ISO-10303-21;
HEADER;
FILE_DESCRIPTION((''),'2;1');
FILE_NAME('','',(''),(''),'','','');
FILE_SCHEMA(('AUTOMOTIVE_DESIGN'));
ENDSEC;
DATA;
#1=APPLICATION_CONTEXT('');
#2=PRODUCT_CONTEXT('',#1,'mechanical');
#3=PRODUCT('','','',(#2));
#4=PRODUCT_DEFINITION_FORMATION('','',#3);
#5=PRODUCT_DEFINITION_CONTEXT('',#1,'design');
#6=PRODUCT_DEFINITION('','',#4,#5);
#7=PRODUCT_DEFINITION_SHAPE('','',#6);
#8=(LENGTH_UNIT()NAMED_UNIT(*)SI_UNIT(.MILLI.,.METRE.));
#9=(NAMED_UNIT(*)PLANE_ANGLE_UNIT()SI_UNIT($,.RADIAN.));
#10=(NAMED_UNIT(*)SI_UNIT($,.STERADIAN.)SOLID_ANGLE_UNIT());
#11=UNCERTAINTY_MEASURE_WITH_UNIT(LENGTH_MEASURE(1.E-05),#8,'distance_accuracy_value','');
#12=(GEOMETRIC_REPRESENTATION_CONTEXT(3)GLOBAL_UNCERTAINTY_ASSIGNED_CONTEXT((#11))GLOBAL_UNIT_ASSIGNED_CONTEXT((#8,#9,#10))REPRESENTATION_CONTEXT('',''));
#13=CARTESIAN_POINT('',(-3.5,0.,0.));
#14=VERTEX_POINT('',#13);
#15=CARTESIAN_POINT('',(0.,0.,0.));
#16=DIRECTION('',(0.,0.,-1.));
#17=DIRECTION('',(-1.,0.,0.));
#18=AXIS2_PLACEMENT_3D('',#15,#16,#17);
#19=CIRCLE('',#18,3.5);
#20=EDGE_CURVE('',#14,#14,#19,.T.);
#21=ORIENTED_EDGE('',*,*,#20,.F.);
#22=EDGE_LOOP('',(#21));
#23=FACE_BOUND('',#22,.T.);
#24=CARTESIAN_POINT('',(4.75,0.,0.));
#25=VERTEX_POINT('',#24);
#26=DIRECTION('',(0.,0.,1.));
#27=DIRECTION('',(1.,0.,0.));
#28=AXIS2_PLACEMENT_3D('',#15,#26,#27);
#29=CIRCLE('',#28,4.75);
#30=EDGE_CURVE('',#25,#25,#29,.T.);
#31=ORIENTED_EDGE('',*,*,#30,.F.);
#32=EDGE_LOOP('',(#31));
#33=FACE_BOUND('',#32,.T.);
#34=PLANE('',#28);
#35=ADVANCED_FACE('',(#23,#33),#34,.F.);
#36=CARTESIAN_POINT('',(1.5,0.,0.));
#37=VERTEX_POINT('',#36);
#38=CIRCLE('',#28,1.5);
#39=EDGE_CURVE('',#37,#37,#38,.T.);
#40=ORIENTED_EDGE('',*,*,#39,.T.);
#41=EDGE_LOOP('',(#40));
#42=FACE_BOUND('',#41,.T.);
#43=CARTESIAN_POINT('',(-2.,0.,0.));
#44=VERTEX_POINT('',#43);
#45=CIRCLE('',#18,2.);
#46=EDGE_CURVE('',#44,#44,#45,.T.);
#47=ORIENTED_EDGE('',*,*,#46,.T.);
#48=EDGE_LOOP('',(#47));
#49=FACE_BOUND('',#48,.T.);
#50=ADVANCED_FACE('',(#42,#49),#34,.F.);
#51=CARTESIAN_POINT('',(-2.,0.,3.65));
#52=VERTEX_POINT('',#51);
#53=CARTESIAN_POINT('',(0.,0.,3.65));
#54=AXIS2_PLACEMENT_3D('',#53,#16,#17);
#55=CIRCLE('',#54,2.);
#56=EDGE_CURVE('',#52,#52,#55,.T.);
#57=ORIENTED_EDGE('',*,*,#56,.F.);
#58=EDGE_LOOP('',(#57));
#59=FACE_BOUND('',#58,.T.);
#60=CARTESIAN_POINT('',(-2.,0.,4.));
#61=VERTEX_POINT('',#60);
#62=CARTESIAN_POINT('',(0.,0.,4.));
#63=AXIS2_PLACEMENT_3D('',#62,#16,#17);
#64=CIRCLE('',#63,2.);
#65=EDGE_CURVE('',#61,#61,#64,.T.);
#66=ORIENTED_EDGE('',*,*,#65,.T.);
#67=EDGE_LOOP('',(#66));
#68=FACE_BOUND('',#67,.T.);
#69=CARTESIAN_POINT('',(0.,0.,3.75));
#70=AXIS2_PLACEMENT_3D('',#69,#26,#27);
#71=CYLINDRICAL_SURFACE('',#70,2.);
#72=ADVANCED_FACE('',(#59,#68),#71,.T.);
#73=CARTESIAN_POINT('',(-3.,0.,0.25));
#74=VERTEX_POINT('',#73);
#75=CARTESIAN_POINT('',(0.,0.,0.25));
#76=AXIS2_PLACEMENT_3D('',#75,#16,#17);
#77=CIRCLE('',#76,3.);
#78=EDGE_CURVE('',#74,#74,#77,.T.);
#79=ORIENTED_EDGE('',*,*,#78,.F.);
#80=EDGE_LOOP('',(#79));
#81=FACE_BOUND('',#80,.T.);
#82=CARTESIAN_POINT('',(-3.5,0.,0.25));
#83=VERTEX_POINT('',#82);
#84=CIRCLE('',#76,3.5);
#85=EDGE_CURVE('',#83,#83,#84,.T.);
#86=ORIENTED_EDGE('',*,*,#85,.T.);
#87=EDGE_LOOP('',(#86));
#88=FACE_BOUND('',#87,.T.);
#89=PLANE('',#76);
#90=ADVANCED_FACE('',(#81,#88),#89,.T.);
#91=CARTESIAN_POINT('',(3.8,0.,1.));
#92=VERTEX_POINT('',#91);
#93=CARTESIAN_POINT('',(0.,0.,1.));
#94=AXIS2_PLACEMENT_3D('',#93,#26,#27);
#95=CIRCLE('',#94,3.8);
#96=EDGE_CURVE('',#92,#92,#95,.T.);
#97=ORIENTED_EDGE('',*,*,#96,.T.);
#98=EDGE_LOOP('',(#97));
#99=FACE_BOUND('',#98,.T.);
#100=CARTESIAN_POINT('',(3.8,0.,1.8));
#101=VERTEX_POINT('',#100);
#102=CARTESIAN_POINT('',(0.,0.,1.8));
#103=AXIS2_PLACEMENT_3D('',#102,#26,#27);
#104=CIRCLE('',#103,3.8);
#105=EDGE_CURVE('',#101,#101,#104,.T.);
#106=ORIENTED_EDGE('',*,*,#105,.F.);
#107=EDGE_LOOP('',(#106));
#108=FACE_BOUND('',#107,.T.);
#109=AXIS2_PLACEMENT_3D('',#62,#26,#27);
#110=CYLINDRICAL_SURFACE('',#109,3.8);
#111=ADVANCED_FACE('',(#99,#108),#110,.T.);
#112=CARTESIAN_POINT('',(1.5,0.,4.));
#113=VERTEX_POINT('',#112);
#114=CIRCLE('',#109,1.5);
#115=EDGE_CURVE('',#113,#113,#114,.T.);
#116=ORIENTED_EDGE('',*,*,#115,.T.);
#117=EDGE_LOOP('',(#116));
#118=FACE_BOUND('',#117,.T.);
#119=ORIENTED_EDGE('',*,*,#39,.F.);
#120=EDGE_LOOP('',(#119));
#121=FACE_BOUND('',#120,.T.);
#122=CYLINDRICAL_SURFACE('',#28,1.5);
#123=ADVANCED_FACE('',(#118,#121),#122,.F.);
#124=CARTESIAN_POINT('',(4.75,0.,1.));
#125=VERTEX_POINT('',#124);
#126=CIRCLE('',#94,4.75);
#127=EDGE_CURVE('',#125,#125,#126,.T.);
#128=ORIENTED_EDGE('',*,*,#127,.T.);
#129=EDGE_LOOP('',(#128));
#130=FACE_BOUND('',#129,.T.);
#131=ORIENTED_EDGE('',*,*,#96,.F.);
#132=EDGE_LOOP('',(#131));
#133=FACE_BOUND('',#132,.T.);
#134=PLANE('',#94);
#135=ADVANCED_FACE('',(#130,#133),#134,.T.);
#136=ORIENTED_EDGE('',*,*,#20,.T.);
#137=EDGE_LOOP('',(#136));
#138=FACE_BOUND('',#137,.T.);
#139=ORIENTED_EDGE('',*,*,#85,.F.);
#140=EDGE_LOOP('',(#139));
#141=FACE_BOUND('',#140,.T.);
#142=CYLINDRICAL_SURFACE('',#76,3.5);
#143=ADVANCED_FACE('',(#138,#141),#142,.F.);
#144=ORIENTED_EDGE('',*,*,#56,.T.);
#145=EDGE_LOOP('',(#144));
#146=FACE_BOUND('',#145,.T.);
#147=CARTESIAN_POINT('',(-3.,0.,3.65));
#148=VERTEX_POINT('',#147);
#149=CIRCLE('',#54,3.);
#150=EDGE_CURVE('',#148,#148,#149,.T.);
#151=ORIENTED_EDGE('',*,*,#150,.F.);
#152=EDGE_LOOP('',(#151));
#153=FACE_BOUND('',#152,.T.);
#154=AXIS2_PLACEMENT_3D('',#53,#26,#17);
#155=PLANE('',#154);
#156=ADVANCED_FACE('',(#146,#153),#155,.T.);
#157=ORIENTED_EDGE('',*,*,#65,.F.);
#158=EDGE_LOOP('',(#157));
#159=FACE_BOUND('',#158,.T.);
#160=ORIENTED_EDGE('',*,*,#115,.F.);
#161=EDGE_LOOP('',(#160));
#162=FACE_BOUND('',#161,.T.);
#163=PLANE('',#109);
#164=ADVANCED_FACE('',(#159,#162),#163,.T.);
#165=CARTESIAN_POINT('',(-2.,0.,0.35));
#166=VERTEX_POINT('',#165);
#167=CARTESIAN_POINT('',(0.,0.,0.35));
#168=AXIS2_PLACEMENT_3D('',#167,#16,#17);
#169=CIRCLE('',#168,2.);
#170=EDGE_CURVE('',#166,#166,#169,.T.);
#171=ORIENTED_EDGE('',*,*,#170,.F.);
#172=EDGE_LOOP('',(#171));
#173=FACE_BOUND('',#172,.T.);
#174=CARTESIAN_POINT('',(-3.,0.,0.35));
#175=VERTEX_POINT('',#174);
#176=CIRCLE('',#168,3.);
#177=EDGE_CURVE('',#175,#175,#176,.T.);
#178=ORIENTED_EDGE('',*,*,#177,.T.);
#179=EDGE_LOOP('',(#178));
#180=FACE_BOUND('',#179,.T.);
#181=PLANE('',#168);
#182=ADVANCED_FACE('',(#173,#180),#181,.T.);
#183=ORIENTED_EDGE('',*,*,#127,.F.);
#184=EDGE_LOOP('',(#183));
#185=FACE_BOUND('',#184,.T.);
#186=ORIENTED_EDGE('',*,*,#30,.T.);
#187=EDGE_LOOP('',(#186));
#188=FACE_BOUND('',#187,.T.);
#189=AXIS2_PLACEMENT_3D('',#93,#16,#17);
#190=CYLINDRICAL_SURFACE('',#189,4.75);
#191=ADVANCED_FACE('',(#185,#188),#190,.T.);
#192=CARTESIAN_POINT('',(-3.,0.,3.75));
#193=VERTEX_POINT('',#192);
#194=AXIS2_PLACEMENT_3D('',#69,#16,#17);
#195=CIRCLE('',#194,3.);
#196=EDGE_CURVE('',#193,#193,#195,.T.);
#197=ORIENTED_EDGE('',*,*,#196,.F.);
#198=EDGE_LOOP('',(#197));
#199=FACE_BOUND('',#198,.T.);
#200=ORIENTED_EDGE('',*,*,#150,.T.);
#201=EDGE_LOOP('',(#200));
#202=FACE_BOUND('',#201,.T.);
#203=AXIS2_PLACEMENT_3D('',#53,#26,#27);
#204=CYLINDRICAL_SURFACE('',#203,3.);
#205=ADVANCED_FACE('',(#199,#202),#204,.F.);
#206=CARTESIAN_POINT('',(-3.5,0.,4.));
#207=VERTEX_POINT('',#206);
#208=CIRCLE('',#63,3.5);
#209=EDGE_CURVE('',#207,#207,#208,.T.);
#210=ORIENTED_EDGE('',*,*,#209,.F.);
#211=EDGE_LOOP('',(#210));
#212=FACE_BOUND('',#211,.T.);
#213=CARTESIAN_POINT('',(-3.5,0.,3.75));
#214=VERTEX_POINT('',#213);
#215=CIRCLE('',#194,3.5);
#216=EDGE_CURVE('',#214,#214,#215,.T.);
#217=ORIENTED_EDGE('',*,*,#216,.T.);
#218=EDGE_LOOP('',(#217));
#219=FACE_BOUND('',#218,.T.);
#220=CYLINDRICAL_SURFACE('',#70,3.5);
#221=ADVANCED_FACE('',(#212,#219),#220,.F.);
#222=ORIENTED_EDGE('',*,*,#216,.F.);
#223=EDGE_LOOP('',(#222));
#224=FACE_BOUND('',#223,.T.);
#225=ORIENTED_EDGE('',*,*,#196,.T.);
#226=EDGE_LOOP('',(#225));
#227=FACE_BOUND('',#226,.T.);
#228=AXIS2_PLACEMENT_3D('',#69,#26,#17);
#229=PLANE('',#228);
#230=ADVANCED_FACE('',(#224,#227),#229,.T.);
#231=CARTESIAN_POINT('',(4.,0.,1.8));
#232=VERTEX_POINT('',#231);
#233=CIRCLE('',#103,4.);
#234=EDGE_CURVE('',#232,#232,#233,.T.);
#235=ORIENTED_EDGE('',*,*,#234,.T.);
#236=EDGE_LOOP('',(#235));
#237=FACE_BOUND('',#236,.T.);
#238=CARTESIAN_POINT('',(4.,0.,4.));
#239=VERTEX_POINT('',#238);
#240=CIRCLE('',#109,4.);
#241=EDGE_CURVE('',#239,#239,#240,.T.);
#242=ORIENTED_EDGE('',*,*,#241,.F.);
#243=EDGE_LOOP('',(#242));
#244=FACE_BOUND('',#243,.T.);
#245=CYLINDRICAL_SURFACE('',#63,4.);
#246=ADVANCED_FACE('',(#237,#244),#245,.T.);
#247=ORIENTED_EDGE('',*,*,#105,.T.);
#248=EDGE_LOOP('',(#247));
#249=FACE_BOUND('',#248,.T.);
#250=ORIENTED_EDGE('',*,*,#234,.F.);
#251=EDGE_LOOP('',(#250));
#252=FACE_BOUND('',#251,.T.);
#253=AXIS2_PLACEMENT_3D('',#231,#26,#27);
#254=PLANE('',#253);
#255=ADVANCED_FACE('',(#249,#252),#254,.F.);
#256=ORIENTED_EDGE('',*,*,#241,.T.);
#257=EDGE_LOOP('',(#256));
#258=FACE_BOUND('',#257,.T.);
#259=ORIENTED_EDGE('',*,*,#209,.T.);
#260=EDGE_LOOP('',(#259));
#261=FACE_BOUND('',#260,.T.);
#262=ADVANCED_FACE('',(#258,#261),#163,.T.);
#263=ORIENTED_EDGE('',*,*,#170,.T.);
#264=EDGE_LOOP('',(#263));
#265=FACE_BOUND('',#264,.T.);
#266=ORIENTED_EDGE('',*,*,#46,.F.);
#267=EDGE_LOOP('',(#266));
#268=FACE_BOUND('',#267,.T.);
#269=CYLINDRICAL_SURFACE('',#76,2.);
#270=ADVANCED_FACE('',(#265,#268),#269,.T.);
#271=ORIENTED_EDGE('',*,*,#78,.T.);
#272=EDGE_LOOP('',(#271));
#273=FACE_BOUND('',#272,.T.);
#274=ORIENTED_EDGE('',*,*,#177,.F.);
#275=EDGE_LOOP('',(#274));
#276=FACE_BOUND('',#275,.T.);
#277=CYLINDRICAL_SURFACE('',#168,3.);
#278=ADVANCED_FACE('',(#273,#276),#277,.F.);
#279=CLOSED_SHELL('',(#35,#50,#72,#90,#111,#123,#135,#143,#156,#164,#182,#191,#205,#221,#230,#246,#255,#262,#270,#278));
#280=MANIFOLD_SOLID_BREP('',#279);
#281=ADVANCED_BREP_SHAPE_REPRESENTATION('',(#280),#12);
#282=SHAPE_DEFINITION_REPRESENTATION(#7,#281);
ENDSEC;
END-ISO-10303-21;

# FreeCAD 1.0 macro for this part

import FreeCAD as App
import Part
import Sketcher

V = App.Vector
Q = App.Units.Quantity

doc = App.newDocument("Part")
body = doc.addObject("PartDesign::Body", "Body")

# Sketch on XY plane
sketch1 = body.newObject("Sketcher::SketchObject", "Sketch")
sketch1.AttachmentSupport = (doc.getObject("XY_Plane"), [""])
sketch1.MapMode = "FlatFace"
sketch1.addGeometry(Part.Circle(V(0, 0, 0), V(0, 0, 1), 4), False)
sketch1.addConstraint([
    Sketcher.Constraint("Coincident", 0, 3, -1, 1),
    Sketcher.Constraint("Diameter", 0, Q("8 mm")),
])
pad1 = body.newObject("PartDesign::Pad", "Pad")
pad1.Profile = sketch1
pad1.Length = 4

# Sketch on XY plane
sketch2 = body.newObject("Sketcher::SketchObject", "Sketch001")
sketch2.AttachmentSupport = (doc.getObject("XY_Plane"), [""])
sketch2.MapMode = "FlatFace"
sketch2.AttachmentOffset = App.Placement(V(0, 0, 4), App.Rotation())
sketch2.addGeometry(Part.Circle(V(0, 0, 0), V(0, 0, 1), 1.5), False)
sketch2.addConstraint([
    Sketcher.Constraint("Coincident", 0, 3, -1, 1),
    Sketcher.Constraint("Diameter", 0, Q("3 mm")),
])
pocket1 = body.newObject("PartDesign::Pocket", "Pocket")
pocket1.Profile = sketch2
pocket1.Type = "ThroughAll"

# Sketch on XY plane
sketch3 = body.newObject("Sketcher::SketchObject", "Sketch002")
sketch3.AttachmentSupport = (doc.getObject("XY_Plane"), [""])
sketch3.MapMode = "FlatFace"
sketch3.addGeometry([
    Part.Circle(V(0, 0, 0), V(0, 0, 1), 3.5),
    Part.Circle(V(0, 0, 0), V(0, 0, 1), 2),
], False)
sketch3.addConstraint([
    Sketcher.Constraint("Coincident", 0, 3, -1, 1),
    Sketcher.Constraint("Coincident", 1, 3, -1, 1),
    Sketcher.Constraint("Diameter", 0, Q("7 mm")),
    Sketcher.Constraint("Diameter", 1, Q("4 mm")),
])
pocket2 = body.newObject("PartDesign::Pocket", "Pocket001")
pocket2.Profile = sketch3
pocket2.Length = 0.25
pocket2.Reversed = True

# Sketch on XY plane
sketch4 = body.newObject("Sketcher::SketchObject", "Sketch003")
sketch4.AttachmentSupport = (doc.getObject("XY_Plane"), [""])
sketch4.MapMode = "FlatFace"
sketch4.AttachmentOffset = App.Placement(V(0, 0, 0.25), App.Rotation())
sketch4.addGeometry([
    Part.Circle(V(0, 0, 0), V(0, 0, 1), 3),
    Part.Circle(V(0, 0, 0), V(0, 0, 1), 2),
], False)
sketch4.addConstraint([
    Sketcher.Constraint("Coincident", 0, 3, -1, 1),
    Sketcher.Constraint("Coincident", 1, 3, -1, 1),
    Sketcher.Constraint("Diameter", 0, Q("6 mm")),
    Sketcher.Constraint("Diameter", 1, Q("4 mm")),
])
pocket3 = body.newObject("PartDesign::Pocket", "Pocket002")
pocket3.Profile = sketch4
pocket3.Length = 0.1
pocket3.Reversed = True
doc.recompute()

datumplane = body.newObject("PartDesign::Plane", "DatumPlane")
datumplane.AttachmentSupport = (doc.getObject("XY_Plane"), [""])
datumplane.MapMode = "FlatFace"
datumplane.AttachmentOffset = App.Placement(V(0, 0, 2), App.Rotation())
mirrored = body.newObject("PartDesign::Mirrored", "Mirrored")
mirrored.Originals = [pocket2, pocket3]
mirrored.MirrorPlane = (datumplane, [""])
body.Tip = mirrored

# Sketch on XY plane
sketch5 = body.newObject("Sketcher::SketchObject", "Sketch004")
sketch5.AttachmentSupport = (doc.getObject("XY_Plane"), [""])
sketch5.MapMode = "FlatFace"
sketch5.addGeometry([
    Part.Circle(V(0, 0, 0), V(0, 0, 1), 4.8),
    Part.Circle(V(0, 0, 0), V(0, 0, 1), 4),
], False)
sketch5.addConstraint([
    Sketcher.Constraint("Coincident", 0, 3, -1, 1),
    Sketcher.Constraint("Coincident", 1, 3, -1, 1),
    Sketcher.Constraint("Diameter", 1, Q("8 mm")),
    Sketcher.Constraint("Diameter", 0, Q("9.5 mm")),
])
pad2 = body.newObject("PartDesign::Pad", "Pad001")
pad2.Profile = sketch5
pad2.Length = 1

# Sketch on XZ plane
sketch6 = body.newObject("Sketcher::SketchObject", "Sketch005")
sketch6.AttachmentSupport = (doc.getObject("XZ_Plane"), [""])
sketch6.MapMode = "FlatFace"
sketch6.addGeometry([
    Part.LineSegment(V(3.8, 1, 0), V(3.8, 1.8, 0)),
    Part.LineSegment(V(3.8, 1.8, 0), V(4, 1.8, 0)),
    Part.LineSegment(V(4, 1.8, 0), V(4, 1, 0)),
    Part.LineSegment(V(4, 1, 0), V(3.8, 1, 0)),
], False)
sketch6.addConstraint([
    Sketcher.Constraint("Coincident", 0, 2, 1, 1),
    Sketcher.Constraint("Coincident", 1, 2, 2, 1),
    Sketcher.Constraint("Coincident", 2, 2, 3, 1),
    Sketcher.Constraint("Coincident", 3, 2, 0, 1),
    Sketcher.Constraint("Vertical", 0),
    Sketcher.Constraint("Horizontal", 1),
    Sketcher.Constraint("Vertical", 2),
    Sketcher.Constraint("Horizontal", 3),
    Sketcher.Constraint("DistanceX", 1, 1, 1, 2, Q("0.2 mm")),
    Sketcher.Constraint("DistanceY", 0, 1, 0, 2, Q("0.8 mm")),
    Sketcher.Constraint("DistanceX", -1, 1, 1, 2, Q("4 mm")),
    Sketcher.Constraint("DistanceY", -1, 1, 2, 2, Q("1 mm")),
])
groove = body.newObject("PartDesign::Groove", "Groove")
groove.Profile = sketch6
groove.ReferenceAxis = (sketch6, ["V_Axis"])
groove.Angle = 360

doc.recompute()
